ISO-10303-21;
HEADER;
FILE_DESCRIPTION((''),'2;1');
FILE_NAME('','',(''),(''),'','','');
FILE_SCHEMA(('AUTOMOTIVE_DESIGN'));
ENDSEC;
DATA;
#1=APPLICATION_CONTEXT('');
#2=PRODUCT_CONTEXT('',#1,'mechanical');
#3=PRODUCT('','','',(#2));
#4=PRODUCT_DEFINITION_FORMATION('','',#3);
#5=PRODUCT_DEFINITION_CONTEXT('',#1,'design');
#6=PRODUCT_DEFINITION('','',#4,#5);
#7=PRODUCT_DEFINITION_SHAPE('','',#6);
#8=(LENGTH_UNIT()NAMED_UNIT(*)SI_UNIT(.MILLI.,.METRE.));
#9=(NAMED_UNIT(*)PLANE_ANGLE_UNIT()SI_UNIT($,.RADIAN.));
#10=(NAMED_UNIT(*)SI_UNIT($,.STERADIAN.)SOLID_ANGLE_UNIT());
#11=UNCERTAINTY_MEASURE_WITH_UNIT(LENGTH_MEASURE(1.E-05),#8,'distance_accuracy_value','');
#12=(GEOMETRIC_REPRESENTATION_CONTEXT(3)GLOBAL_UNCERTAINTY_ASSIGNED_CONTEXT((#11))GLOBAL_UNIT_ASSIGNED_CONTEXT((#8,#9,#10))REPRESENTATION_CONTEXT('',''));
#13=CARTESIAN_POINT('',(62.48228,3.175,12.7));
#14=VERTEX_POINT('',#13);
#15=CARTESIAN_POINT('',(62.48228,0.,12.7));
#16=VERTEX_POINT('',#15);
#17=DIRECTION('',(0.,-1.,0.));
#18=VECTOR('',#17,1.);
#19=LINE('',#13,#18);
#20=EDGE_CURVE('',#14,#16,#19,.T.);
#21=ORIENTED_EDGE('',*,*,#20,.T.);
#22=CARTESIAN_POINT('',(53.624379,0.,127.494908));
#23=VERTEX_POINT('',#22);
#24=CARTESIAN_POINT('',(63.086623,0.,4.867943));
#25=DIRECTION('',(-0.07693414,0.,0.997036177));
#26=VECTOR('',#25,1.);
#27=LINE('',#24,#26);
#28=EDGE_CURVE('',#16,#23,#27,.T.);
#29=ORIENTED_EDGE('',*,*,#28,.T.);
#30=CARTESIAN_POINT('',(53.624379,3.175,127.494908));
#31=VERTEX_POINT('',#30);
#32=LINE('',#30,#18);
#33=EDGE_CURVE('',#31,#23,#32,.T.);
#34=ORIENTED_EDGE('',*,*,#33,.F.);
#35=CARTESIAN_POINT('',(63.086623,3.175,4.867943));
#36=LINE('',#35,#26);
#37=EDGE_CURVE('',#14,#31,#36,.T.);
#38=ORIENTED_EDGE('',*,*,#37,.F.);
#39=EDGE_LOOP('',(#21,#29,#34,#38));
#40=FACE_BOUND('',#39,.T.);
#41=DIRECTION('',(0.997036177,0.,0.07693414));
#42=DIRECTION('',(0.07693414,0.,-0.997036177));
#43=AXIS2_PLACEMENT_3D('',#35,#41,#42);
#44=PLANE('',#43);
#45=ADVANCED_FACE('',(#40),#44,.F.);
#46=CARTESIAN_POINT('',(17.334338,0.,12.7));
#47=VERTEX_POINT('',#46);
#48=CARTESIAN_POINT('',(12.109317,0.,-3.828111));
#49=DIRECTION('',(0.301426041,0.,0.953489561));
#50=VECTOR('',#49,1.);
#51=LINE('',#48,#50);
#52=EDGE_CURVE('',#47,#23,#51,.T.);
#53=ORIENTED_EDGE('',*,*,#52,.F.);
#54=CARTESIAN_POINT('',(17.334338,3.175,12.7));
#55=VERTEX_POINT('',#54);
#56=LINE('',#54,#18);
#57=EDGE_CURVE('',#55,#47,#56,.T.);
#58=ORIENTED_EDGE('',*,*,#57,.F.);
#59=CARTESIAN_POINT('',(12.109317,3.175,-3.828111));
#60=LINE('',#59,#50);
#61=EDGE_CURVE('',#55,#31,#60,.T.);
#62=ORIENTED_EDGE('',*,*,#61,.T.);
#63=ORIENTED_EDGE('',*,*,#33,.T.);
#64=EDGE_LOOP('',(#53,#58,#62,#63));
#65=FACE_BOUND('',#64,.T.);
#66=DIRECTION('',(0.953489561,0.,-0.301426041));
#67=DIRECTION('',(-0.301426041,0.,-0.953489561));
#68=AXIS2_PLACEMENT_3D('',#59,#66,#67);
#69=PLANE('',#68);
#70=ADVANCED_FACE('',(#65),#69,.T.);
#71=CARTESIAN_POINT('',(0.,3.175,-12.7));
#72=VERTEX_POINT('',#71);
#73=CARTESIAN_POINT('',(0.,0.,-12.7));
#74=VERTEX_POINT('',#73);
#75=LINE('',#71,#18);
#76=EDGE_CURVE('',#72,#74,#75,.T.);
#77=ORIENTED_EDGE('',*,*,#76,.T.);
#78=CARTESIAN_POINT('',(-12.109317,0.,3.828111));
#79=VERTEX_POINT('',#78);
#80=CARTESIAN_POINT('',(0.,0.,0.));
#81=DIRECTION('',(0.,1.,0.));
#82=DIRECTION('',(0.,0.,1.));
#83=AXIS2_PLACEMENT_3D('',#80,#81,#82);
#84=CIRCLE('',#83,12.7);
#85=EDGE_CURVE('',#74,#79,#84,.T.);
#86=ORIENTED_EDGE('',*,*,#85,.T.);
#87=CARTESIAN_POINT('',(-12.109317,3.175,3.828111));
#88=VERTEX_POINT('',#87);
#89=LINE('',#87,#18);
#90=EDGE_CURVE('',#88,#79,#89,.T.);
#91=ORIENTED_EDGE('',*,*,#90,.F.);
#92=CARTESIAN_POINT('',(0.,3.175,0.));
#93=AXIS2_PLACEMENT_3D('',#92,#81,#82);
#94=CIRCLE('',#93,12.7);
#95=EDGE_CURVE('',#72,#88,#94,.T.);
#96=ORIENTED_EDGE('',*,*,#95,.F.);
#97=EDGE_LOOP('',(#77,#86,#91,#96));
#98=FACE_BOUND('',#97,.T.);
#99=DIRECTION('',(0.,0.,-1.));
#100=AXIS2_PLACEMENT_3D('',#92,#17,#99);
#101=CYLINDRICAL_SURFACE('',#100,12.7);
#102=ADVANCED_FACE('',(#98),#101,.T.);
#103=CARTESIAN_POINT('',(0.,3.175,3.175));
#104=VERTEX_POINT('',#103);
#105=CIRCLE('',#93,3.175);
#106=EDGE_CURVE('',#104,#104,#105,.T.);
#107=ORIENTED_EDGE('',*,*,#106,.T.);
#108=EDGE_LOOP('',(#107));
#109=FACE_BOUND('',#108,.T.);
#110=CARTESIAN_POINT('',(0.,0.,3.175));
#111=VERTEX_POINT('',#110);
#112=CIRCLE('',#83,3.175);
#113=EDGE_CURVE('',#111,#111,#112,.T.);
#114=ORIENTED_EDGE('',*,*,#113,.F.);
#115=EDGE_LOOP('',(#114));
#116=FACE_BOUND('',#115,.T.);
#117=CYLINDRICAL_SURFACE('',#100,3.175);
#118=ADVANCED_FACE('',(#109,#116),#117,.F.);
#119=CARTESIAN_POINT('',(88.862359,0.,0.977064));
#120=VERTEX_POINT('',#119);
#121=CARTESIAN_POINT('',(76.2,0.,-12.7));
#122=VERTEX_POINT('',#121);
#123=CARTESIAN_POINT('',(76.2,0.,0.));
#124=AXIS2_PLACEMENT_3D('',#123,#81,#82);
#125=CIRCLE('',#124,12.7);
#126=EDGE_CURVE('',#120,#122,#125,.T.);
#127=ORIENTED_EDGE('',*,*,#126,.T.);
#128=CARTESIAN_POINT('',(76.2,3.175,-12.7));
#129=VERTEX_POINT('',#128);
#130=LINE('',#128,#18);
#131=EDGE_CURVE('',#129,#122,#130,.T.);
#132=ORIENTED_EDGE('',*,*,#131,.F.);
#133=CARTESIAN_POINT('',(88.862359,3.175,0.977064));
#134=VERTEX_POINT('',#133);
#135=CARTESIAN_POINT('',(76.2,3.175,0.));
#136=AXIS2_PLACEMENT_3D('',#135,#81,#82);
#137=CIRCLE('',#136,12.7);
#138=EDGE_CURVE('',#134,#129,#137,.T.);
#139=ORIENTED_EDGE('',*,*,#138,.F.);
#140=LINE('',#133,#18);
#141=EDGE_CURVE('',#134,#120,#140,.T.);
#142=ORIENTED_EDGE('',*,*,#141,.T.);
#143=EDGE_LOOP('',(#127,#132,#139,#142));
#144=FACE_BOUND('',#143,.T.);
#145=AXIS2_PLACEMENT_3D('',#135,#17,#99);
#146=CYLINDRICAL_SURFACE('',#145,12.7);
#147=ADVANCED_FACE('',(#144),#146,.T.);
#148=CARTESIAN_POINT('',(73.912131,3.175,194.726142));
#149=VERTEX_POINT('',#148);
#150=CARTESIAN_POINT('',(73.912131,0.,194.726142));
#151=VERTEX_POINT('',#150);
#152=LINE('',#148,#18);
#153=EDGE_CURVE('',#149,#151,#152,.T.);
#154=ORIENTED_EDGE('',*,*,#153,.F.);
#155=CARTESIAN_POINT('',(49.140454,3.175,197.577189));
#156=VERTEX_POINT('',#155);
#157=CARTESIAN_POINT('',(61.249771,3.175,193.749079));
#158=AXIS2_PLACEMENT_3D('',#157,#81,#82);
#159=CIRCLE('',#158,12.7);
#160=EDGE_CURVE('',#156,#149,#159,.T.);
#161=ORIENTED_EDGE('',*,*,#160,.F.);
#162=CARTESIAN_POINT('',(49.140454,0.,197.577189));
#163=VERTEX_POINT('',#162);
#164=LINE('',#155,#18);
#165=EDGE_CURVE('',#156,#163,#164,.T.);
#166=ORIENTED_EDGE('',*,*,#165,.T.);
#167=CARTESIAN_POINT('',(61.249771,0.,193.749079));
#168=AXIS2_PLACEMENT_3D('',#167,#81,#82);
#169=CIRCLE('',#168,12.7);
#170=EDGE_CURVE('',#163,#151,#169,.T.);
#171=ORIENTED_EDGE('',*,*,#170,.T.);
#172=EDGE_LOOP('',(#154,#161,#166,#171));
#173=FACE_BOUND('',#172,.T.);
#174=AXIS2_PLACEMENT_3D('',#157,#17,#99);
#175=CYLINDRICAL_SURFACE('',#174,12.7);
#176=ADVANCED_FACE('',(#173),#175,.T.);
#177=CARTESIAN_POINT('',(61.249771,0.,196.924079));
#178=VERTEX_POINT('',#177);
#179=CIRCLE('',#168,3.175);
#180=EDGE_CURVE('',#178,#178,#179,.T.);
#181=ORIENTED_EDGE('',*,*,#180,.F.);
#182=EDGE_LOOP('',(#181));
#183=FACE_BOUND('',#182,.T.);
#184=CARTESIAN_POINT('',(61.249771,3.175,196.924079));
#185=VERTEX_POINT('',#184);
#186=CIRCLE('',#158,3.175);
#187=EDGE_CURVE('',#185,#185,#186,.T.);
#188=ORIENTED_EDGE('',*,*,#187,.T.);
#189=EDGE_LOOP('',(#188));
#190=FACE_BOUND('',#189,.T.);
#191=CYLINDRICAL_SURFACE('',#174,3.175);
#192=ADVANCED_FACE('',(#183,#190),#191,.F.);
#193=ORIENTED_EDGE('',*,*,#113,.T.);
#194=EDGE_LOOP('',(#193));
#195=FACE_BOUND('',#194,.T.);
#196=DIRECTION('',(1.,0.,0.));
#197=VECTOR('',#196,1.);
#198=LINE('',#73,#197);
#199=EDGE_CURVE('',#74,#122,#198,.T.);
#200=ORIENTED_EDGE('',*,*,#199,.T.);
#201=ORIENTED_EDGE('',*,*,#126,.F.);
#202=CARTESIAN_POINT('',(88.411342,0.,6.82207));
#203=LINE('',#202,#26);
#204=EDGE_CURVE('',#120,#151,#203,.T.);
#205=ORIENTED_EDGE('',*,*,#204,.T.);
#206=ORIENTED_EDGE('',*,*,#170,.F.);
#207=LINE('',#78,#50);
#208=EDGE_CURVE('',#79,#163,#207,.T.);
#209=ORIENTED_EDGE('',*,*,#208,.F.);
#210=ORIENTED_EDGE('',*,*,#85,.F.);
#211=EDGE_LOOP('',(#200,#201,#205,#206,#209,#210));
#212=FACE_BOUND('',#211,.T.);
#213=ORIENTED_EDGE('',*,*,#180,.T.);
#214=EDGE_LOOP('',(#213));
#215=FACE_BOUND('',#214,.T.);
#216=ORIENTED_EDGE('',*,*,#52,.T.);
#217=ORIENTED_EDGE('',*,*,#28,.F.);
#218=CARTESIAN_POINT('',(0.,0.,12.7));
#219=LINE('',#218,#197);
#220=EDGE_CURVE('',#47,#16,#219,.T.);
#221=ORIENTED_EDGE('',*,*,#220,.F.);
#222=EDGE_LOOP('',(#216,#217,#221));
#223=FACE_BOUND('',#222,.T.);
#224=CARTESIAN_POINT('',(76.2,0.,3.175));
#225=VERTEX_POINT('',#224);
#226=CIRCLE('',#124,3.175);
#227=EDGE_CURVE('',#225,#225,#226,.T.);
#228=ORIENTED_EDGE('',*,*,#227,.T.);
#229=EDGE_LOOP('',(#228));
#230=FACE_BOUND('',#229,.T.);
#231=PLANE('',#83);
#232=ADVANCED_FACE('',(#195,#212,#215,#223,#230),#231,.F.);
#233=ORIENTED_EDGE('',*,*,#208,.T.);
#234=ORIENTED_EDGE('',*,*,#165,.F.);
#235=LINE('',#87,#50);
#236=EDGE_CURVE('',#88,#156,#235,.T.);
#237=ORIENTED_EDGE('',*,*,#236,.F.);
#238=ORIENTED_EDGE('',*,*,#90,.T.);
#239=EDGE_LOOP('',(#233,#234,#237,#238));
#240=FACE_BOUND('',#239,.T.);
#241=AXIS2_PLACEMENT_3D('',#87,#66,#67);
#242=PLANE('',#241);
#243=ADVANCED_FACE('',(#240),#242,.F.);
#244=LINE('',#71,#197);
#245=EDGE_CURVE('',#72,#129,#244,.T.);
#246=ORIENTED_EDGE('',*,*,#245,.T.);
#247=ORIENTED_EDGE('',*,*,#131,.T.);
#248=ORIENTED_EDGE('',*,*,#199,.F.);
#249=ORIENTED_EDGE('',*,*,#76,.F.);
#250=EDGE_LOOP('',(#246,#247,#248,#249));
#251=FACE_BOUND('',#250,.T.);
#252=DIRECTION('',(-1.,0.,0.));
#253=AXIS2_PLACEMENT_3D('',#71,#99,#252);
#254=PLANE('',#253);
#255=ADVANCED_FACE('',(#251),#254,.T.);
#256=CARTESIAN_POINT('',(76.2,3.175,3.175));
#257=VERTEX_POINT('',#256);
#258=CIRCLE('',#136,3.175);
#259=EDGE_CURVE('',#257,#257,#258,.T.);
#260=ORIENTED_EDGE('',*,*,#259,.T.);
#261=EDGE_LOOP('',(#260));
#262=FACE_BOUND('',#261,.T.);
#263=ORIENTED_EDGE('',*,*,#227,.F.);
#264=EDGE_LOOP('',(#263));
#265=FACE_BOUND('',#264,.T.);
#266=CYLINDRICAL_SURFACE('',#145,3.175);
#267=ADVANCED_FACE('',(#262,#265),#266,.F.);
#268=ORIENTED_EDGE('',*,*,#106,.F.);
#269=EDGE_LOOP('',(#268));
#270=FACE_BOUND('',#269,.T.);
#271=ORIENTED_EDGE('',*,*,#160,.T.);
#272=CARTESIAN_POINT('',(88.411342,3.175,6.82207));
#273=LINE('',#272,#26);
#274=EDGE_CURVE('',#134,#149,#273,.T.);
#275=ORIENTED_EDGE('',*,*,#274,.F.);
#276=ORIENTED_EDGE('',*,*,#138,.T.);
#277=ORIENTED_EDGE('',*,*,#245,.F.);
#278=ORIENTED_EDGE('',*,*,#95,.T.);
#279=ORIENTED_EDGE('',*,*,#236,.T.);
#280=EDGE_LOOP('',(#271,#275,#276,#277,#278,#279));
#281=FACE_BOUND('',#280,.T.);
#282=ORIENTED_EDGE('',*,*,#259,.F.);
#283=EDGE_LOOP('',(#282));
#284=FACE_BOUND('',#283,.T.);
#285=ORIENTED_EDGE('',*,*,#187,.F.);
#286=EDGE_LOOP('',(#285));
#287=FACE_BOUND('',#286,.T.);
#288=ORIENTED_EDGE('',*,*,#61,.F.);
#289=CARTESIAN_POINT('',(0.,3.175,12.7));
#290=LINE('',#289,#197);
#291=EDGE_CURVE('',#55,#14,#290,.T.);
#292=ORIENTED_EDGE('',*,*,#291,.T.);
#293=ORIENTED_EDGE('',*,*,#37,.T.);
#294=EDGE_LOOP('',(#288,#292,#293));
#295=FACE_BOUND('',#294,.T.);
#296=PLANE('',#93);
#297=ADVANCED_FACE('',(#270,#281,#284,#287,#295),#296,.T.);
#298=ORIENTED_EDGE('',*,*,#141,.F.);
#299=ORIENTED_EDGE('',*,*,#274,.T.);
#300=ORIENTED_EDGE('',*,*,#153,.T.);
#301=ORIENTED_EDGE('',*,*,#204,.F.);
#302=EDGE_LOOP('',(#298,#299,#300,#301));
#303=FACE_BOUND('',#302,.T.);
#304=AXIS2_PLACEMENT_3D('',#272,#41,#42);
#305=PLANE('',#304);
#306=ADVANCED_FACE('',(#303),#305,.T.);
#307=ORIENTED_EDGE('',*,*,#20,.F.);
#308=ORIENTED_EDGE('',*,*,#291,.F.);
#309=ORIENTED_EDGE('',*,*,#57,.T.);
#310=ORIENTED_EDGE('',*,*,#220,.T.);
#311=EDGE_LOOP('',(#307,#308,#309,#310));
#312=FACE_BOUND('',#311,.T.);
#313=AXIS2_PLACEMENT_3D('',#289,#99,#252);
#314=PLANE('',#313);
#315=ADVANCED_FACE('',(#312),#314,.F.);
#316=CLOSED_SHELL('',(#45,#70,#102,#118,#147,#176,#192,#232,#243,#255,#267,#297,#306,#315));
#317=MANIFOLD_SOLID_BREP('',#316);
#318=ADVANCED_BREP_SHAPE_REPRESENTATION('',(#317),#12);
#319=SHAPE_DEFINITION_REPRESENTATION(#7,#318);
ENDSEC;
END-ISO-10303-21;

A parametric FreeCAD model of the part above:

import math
import FreeCAD as App
import Part
import Sketcher
from FreeCAD import Vector
Q = App.Units.Quantity


def add_polygon(sketch, points):
    """Adds a closed chain of lines whose ends are joined by coincident constraints."""
    first, n = sketch.GeometryCount, len(points)
    for a, b in zip(points, points[1:] + points[:1]):
        sketch.addGeometry(Part.LineSegment(App.Vector(*a, 0), App.Vector(*b, 0)), False)
    for i in range(n):
        sketch.addConstraint(Sketcher.Constraint("Coincident", first + i, 2, first + (i + 1) % n, 1))

doc = App.newDocument("Part")
body = doc.addObject("PartDesign::Body", "Body")

sketch1 = body.newObject("Sketcher::SketchObject", "Sketch")
sketch1.AttachmentSupport = (doc.getObject("XZ_Plane"), [""])
sketch1.MapMode = "FlatFace"
sketch1.addGeometry(Part.ArcOfCircle(Part.Circle(Vector(76.2, 0, 0), Vector(0, 0, 1), 12.7), math.radians(-90), math.radians(4)), False)
sketch1.addGeometry(Part.LineSegment(Vector(76.2, -12.7, 0), Vector(0, -12.7, 0)), False)
sketch1.addGeometry(Part.ArcOfCircle(Part.Circle(Vector(0, 0, 0), Vector(0, 0, 1), 12.7), math.radians(162), math.radians(270)), False)
sketch1.addGeometry(Part.LineSegment(Vector(-12.1, 3.8, 0), Vector(49.1, 197.6, 0)), False)
sketch1.addGeometry(Part.ArcOfCircle(Part.Circle(Vector(61.2, 193.7, 0), Vector(0, 0, 1), 12.7), math.radians(4), math.radians(162)), False)
sketch1.addGeometry(Part.LineSegment(Vector(73.9, 194.7, 0), Vector(88.9, 1, 0)), False)
sketch1.addGeometry(Part.Circle(Vector(61.2, 193.7, 0), Vector(0, 0, 1), 3.2), False)
sketch1.addGeometry(Part.Circle(Vector(0, 0, 0), Vector(0, 0, 1), 3.2), False)
add_polygon(sketch1, [(53.6, 127.5), (17.3, 12.7), (62.5, 12.7)])
sketch1.addGeometry(Part.Circle(Vector(76.2, 0, 0), Vector(0, 0, 1), 3.2), False)
sketch1.addConstraint(Sketcher.Constraint("Tangent", 0, 1, 1, 1))
sketch1.addConstraint(Sketcher.Constraint("Tangent", 1, 2, 2, 2))
sketch1.addConstraint(Sketcher.Constraint("Tangent", 2, 1, 3, 1))
sketch1.addConstraint(Sketcher.Constraint("Tangent", 3, 2, 4, 2))
sketch1.addConstraint(Sketcher.Constraint("Tangent", 4, 1, 5, 1))
sketch1.addConstraint(Sketcher.Constraint("Tangent", 5, 2, 0, 2))
sketch1.addConstraint(Sketcher.Constraint("Horizontal", 1))
sketch1.addConstraint(Sketcher.Constraint("Horizontal", 9))
sketch1.addConstraint(Sketcher.Constraint("Coincident", 2, 3, -1, 1))
sketch1.addConstraint(Sketcher.Constraint("Coincident", 7, 3, -1, 1))
sketch1.addConstraint(Sketcher.Constraint("Coincident", 6, 3, 4, 3))
sketch1.addConstraint(Sketcher.Constraint("Coincident", 11, 3, 0, 3))
sketch1.addConstraint(Sketcher.Constraint("Equal", 0, 2))
sketch1.addConstraint(Sketcher.Constraint("Equal", 2, 4))
sketch1.addConstraint(Sketcher.Constraint("Equal", 6, 7))
sketch1.addConstraint(Sketcher.Constraint("Equal", 7, 11))
sketch1.addConstraint(Sketcher.Constraint("Parallel", 3, 8))
sketch1.addConstraint(Sketcher.Constraint("Parallel", 5, 10))
sketch1.addConstraint(Sketcher.Constraint("Radius", 0, Q("0.5 in")))
sketch1.addConstraint(Sketcher.Constraint("Diameter", 6, Q("0.25 in")))
sketch1.addConstraint(Sketcher.Constraint("DistanceX", 1, 2, 1, 1, Q("3 in")))
sketch1.addConstraint(Sketcher.Constraint("Distance", 3, Q("8 in")))
sketch1.addConstraint(Sketcher.Constraint("DistanceY", 1, 2, 8, 2, Q("1 in")))
sketch1.addConstraint(Sketcher.Constraint("DistanceX", 9, 1, 9, 2, Q("45.147941 mm")))
sketch1.addConstraint(Sketcher.Constraint("DistanceX", 10, 2, 9, 2, Q("8.857901 mm")))
sketch1.addConstraint(Sketcher.Constraint("DistanceX", -1, 1, 8, 2, Q("17.334338 mm")))
pad1 = body.newObject("PartDesign::Pad", "Pad")
pad1.Profile = sketch1
pad1.Length = Q("0.125 in")
pad1.Reversed = True

doc.recompute()
